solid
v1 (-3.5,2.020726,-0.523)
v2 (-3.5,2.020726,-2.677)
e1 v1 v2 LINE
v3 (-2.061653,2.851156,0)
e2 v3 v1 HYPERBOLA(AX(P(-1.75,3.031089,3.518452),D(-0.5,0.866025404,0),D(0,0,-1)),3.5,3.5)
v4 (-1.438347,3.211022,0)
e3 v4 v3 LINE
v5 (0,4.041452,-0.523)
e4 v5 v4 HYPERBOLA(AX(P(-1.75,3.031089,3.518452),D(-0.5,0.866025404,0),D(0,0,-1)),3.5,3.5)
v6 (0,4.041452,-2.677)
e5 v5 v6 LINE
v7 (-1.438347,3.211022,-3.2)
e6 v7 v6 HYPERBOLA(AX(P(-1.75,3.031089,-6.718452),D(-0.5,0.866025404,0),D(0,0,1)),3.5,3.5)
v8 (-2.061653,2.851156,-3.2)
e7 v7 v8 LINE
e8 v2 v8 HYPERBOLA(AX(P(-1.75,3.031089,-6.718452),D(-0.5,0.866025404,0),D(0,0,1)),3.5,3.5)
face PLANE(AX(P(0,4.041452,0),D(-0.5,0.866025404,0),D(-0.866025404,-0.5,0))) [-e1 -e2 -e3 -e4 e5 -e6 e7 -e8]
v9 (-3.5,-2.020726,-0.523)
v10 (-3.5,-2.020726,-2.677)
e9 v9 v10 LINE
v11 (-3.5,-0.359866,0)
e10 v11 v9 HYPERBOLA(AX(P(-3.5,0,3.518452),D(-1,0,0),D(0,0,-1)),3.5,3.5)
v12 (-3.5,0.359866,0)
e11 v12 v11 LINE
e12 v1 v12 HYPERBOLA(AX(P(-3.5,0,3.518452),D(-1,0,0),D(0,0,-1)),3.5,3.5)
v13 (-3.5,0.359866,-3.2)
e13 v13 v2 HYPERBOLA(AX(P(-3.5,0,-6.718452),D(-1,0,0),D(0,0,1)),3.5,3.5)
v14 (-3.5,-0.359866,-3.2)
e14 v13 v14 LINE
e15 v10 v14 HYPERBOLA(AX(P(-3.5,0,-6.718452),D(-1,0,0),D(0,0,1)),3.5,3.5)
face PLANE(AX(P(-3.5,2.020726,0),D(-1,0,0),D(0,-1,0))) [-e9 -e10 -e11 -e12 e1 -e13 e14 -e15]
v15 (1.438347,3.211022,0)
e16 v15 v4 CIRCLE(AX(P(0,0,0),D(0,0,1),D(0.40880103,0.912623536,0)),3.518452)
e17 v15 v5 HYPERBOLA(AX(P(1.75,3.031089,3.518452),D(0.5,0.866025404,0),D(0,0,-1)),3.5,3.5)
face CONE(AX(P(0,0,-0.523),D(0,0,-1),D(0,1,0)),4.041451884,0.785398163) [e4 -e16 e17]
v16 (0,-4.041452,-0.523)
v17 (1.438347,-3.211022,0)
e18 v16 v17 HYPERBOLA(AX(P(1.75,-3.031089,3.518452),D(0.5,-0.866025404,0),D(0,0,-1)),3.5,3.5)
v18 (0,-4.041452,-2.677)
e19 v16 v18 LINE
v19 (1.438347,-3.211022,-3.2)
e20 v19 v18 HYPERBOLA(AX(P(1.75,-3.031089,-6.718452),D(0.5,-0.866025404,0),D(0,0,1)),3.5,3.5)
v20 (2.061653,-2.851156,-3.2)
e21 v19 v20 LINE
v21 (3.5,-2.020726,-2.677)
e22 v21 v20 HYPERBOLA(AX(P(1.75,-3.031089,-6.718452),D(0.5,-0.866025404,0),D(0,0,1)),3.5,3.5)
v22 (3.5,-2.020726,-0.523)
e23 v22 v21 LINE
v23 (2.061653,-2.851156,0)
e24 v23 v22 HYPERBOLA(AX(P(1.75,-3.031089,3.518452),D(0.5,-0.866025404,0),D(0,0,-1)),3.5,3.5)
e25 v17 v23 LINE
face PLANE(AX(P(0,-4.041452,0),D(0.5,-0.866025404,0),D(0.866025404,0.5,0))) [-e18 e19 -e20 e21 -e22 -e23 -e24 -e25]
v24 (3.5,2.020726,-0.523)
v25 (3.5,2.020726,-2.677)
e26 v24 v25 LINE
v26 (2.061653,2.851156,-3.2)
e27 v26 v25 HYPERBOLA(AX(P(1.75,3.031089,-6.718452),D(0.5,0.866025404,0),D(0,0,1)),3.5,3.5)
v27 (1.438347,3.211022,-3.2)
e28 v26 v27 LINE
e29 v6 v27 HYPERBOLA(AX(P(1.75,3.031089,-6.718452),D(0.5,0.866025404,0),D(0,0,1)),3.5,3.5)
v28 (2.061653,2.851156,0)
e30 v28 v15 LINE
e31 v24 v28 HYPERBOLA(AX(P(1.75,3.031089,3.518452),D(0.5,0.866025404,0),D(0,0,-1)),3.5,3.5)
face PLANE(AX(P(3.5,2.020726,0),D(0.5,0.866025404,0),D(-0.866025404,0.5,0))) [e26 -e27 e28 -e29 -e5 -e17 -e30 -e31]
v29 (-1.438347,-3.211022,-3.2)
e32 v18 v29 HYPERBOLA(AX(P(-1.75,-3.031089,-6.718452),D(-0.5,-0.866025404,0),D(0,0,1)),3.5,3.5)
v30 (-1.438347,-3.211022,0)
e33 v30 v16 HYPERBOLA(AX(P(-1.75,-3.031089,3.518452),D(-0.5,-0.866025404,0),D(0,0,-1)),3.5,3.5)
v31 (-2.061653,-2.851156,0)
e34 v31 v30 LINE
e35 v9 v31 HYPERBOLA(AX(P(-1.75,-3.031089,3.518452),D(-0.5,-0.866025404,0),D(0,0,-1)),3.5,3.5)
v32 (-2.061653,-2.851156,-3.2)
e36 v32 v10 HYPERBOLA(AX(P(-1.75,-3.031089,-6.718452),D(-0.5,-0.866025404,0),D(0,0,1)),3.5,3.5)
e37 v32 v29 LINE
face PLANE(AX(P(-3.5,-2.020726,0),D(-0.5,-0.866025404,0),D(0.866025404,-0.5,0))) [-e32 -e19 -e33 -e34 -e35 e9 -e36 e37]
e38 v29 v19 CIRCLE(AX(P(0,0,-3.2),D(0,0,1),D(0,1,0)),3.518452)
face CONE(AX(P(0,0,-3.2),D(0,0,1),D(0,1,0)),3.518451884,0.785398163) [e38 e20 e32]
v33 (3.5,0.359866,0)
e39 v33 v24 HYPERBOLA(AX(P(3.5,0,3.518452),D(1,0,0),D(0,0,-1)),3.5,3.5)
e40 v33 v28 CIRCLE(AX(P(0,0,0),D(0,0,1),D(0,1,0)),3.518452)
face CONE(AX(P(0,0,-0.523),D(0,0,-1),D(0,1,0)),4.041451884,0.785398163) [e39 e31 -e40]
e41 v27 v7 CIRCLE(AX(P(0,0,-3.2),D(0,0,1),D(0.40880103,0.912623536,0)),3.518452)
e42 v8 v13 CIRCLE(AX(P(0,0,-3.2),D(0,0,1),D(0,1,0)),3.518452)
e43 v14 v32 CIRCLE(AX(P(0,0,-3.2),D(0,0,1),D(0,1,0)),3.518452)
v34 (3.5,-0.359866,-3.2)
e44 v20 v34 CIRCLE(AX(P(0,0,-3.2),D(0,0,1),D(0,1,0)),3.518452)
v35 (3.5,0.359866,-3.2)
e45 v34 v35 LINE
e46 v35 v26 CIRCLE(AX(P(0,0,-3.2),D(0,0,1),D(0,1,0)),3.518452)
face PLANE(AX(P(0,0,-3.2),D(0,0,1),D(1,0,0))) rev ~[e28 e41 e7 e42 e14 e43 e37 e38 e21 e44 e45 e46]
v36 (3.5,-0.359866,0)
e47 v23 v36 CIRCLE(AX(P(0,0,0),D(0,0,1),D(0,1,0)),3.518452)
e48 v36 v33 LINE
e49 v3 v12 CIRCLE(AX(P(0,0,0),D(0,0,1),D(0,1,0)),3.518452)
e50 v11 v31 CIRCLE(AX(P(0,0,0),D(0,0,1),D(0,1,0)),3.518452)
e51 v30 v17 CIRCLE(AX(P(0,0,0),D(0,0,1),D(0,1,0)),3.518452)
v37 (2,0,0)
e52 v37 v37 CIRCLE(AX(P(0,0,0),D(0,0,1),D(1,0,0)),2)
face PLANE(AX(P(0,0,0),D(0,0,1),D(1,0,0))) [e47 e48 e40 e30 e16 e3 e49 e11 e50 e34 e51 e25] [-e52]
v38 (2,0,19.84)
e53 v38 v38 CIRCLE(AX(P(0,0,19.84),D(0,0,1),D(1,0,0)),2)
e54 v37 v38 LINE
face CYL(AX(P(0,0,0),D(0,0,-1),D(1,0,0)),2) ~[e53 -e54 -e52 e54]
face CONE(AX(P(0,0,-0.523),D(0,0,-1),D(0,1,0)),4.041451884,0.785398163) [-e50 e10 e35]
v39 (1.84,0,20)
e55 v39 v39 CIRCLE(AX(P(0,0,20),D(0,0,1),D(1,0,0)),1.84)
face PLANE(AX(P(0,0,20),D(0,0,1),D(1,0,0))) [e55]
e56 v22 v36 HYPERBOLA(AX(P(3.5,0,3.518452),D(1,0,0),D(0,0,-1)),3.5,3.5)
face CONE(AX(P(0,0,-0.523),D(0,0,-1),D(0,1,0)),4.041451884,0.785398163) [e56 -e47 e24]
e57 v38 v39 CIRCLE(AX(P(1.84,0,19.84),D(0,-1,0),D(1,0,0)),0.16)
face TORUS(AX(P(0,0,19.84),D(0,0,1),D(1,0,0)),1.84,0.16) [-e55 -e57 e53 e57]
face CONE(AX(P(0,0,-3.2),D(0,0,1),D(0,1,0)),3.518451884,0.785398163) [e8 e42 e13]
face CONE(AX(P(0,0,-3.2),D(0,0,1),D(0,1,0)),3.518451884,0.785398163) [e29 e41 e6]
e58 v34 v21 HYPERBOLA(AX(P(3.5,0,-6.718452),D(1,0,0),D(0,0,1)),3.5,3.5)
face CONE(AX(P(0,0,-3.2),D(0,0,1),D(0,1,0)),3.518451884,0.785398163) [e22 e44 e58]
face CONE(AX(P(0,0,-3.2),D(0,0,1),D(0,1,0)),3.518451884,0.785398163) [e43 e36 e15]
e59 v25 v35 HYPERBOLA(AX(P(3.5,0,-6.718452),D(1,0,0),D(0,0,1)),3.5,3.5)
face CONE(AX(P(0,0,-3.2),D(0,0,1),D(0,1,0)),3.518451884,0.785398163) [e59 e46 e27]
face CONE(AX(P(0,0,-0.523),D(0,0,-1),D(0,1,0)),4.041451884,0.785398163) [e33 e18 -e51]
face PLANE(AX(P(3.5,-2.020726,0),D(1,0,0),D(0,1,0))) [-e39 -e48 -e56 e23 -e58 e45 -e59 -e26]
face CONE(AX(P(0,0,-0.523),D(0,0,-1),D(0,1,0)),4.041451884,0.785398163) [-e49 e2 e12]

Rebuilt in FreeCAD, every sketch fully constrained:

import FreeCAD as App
import Part
import Sketcher

V = App.Vector
Q = App.Units.Quantity


def edges_at(feature, points):
    """Names of the edges that pass closest to the given points."""
    edges = feature.Shape.Edges
    near = lambda p: min(range(len(edges)), key=lambda i: edges[i].distToShape(Part.Vertex(*p))[0])
    return sorted({f"Edge{near(p) + 1}" for p in points})


def add_polygon(sketch, points):
    """Adds a closed chain of lines whose ends are joined by coincident constraints."""
    first, n = sketch.GeometryCount, len(points)
    for a, b in zip(points, points[1:] + points[:1]):
        sketch.addGeometry(Part.LineSegment(App.Vector(*a, 0), App.Vector(*b, 0)), False)
    for i in range(n):
        sketch.addConstraint(Sketcher.Constraint("Coincident", first + i, 2, first + (i + 1) % n, 1))

doc = App.newDocument("Part")
params = doc.addObject("Spreadsheet::Sheet", "Params")
for row, (alias, value) in enumerate([
    ("pad1_length", "3.2 mm"),
    ("sketch2_diameter", "4 mm"),
    ("pad2_length", "20 mm"),
    ("fillet_radius", "0.16 mm"),
    ("groove_angle", "360 deg"),
], start=1):
    params.set(f"A{row}", alias)
    params.set(f"B{row}", "=" + value)
    params.setAlias(f"B{row}", alias)

body = doc.addObject("PartDesign::Body", "Body")

# Sketch on XY plane
sketch1 = body.newObject("Sketcher::SketchObject", "Sketch")
sketch1.AttachmentSupport = (doc.getObject("XY_Plane"), [""])
sketch1.MapMode = "FlatFace"
add_polygon(sketch1, [(0, 4), (-3.5, 2), (-3.5, -2), (0, -4), (3.5, -2), (3.5, 2)])  # lines 0-5
sketch1.addConstraint(Sketcher.Constraint("Vertical", 1))
sketch1.addConstraint(Sketcher.Constraint("Vertical", 4))
sketch1.addConstraint(Sketcher.Constraint("Symmetric", 0, 2, 3, 2, -1, 1))
sketch1.addConstraint(Sketcher.Constraint("Symmetric", 2, 2, 5, 2, -1, 1))
sketch1.addConstraint(Sketcher.Constraint("PointOnObject", 2, 2, -2))
sketch1.addConstraint(Sketcher.Constraint("Parallel", 2, 5))
sketch1.addConstraint(Sketcher.Constraint("Horizontal", 1, 2, 3, 2))
sketch1.addConstraint(Sketcher.Constraint("Angle", 0, Q("-150 deg")))
sketch1.addConstraint(Sketcher.Constraint("DistanceX", 1, 2, 3, 2, Q("7 mm")))
sketch1.addConstraint(Sketcher.Constraint("DistanceY", 1, 2, 1, 1, Q("4.041452 mm")))
pad1 = body.newObject("PartDesign::Pad", "Pad")
pad1.Profile = sketch1
pad1.setExpression("Length", "Params.pad1_length")
pad1.Reversed = True

# Sketch on XY plane
sketch2 = body.newObject("Sketcher::SketchObject", "Sketch001")
sketch2.AttachmentSupport = (doc.getObject("XY_Plane"), [""])
sketch2.MapMode = "FlatFace"
sketch2.addGeometry(Part.Circle(V(0, 0, 0), V(0, 0, 1), 2), False)
sketch2.addConstraint(Sketcher.Constraint("Coincident", 0, 3, -1, 1))
sketch2.addConstraint(Sketcher.Constraint("Diameter", 0, Q("4 mm")))
sketch2.setExpression("Constraints[1]", "Params.sketch2_diameter")
pad2 = body.newObject("PartDesign::Pad", "Pad001")
pad2.Profile = sketch2
pad2.setExpression("Length", "Params.pad2_length")
doc.recompute()

fillet = body.newObject("PartDesign::Fillet", "Fillet")
fillet.Base = (pad2, edges_at(pad2, [(-2, 0, 20)]))
fillet.setExpression("Radius", "Params.fillet_radius")

# Sketch on YZ plane
sketch3 = body.newObject("Sketcher::SketchObject", "Sketch002")
sketch3.AttachmentSupport = (doc.getObject("YZ_Plane"), [""])
sketch3.MapMode = "FlatFace"
add_polygon(sketch3, [(3.5, 0), (4, -0.5), (4, 0)])  # lines 0-2
add_polygon(sketch3, [(3.5, -3.2), (4, -3.2), (4, -2.7)])  # lines 3-5
sketch3.addConstraint(Sketcher.Constraint("Vertical", 1))
sketch3.addConstraint(Sketcher.Constraint("Horizontal", 2))
sketch3.addConstraint(Sketcher.Constraint("Horizontal", 3))
sketch3.addConstraint(Sketcher.Constraint("Vertical", 4))
sketch3.addConstraint(Sketcher.Constraint("PointOnObject", 1, 2, -1))
sketch3.addConstraint(Sketcher.Constraint("Perpendicular", 0, 5))
sketch3.addConstraint(Sketcher.Constraint("Vertical", 1, 2, 3, 2))
sketch3.addConstraint(Sketcher.Constraint("Vertical", 2, 2, 5, 2))
sketch3.addConstraint(Sketcher.Constraint("Equal", 3, 1))
sketch3.addConstraint(Sketcher.Constraint("DistanceY", 3, 2, -1, 1, Q("3.2 mm")))
sketch3.addConstraint(Sketcher.Constraint("DistanceX", 2, 2, 2, 1, Q("0.523 mm")))
sketch3.addConstraint(Sketcher.Constraint("DistanceX", -1, 1, 0, 2, Q("4.041452 mm")))
groove = body.newObject("PartDesign::Groove", "Groove")
groove.Profile = sketch3
groove.ReferenceAxis = (sketch3, ["V_Axis"])
groove.setExpression("Angle", "Params.groove_angle")

doc.recompute()
